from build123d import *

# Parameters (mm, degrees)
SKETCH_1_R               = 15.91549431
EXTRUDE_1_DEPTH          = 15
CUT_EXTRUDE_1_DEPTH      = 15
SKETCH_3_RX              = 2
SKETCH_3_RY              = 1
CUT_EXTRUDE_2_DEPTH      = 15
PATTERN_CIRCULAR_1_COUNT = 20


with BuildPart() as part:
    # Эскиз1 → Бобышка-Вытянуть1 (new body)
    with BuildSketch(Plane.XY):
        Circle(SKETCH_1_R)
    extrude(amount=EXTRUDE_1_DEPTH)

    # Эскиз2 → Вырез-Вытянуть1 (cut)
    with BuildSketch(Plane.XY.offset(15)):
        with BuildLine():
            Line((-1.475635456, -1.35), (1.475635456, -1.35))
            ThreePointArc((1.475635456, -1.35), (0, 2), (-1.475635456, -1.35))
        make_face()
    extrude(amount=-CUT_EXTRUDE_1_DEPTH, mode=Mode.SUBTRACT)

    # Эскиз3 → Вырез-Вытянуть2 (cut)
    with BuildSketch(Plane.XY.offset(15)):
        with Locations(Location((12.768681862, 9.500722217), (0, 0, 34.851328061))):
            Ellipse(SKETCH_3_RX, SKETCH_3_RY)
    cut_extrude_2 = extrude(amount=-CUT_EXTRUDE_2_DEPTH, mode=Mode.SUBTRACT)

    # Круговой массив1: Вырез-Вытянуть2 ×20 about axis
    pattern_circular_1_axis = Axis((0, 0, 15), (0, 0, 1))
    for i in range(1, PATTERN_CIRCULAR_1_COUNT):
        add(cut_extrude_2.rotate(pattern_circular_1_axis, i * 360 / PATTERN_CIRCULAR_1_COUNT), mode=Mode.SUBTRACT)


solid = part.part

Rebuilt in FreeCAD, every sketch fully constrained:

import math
import FreeCAD as App
import Part
import Sketcher

V = App.Vector

doc = App.newDocument("Part")
params = doc.addObject("Spreadsheet::Sheet", "Params")
for row, (alias, value) in enumerate([
    ("pad1_length", "15 mm"),
    ("sketch2_radius", "2 mm"),
    ("pocket1_length", "15 mm"),
    ("pocket2_length", "15 mm"),
], start=1):
    params.set(f"A{row}", alias)
    params.set(f"B{row}", "=" + value)
    params.setAlias(f"B{row}", alias)

body = doc.addObject("PartDesign::Body", "Body")

sketch1 = body.newObject("Sketcher::SketchObject", "Sketch")
sketch1.AttachmentSupport = (doc.getObject("XY_Plane"), [""])
sketch1.MapMode = "FlatFace"
sketch1.addGeometry(Part.Circle(V(0, 0, 0), V(0, 0, 1), 16), False)
sketch1.addConstraint(Sketcher.Constraint("Coincident", 0, 3, -1, 1))
sketch1.addConstraint(Sketcher.Constraint("Diameter", 0, 31.830989))
pad1 = body.newObject("PartDesign::Pad", "Pad")
pad1.Profile = sketch1
pad1.setExpression("Length", "Params.pad1_length")

sketch2 = body.newObject("Sketcher::SketchObject", "Sketch001")
sketch2.AttachmentSupport = (doc.getObject("XY_Plane"), [""])
sketch2.MapMode = "FlatFace"
sketch2.AttachmentOffset = App.Placement(V(0, 0, 15), App.Rotation())
sketch2.addGeometry(Part.LineSegment(V(-1.5, -1.4, 0), V(1.5, -1.4, 0)), False)
sketch2.addGeometry(Part.ArcOfCircle(Part.Circle(V(0, 0, 0), V(0, 0, 1), 2), math.radians(-42), math.radians(222)), False)
sketch2.addConstraint(Sketcher.Constraint("Coincident", 0, 1, 1, 2))
sketch2.addConstraint(Sketcher.Constraint("Coincident", 1, 1, 0, 2))
sketch2.addConstraint(Sketcher.Constraint("Horizontal", 0))
sketch2.addConstraint(Sketcher.Constraint("Coincident", 1, 3, -1, 1))
sketch2.addConstraint(Sketcher.Constraint("Radius", 1, 2.0))
sketch2.addConstraint(Sketcher.Constraint("DistanceY", 0, 1, -1, 1, 1.35))
sketch2.setExpression("Constraints[4]", "Params.sketch2_radius")
pocket1 = body.newObject("PartDesign::Pocket", "Pocket")
pocket1.Profile = sketch2
pocket1.setExpression("Length", "Params.pocket1_length")

sketch3 = body.newObject("Sketcher::SketchObject", "Sketch002")
sketch3.AttachmentSupport = (doc.getObject("XY_Plane"), [""])
sketch3.MapMode = "FlatFace"
sketch3.AttachmentOffset = App.Placement(V(0, 0, 15), App.Rotation())
sketch3.addGeometry(Part.Ellipse(V(14.409957, 10.64362, 0), V(12.197233, 10.32136, 0), V(12.768682, 9.500722, 0)), False)
sketch3.addConstraint(Sketcher.Constraint("Block", 0))
pocket2 = body.newObject("PartDesign::Pocket", "Pocket001")
pocket2.Profile = sketch3
pocket2.setExpression("Length", "Params.pocket2_length")
doc.recompute()

polarpattern = body.newObject("PartDesign::PolarPattern", "PolarPattern")
polarpattern.Originals = [pocket2]
polarpattern.Axis = (doc.getObject("Z_Axis"), [""])
polarpattern.Angle = 360
polarpattern.Occurrences = 20
body.Tip = polarpattern

doc.recompute()
